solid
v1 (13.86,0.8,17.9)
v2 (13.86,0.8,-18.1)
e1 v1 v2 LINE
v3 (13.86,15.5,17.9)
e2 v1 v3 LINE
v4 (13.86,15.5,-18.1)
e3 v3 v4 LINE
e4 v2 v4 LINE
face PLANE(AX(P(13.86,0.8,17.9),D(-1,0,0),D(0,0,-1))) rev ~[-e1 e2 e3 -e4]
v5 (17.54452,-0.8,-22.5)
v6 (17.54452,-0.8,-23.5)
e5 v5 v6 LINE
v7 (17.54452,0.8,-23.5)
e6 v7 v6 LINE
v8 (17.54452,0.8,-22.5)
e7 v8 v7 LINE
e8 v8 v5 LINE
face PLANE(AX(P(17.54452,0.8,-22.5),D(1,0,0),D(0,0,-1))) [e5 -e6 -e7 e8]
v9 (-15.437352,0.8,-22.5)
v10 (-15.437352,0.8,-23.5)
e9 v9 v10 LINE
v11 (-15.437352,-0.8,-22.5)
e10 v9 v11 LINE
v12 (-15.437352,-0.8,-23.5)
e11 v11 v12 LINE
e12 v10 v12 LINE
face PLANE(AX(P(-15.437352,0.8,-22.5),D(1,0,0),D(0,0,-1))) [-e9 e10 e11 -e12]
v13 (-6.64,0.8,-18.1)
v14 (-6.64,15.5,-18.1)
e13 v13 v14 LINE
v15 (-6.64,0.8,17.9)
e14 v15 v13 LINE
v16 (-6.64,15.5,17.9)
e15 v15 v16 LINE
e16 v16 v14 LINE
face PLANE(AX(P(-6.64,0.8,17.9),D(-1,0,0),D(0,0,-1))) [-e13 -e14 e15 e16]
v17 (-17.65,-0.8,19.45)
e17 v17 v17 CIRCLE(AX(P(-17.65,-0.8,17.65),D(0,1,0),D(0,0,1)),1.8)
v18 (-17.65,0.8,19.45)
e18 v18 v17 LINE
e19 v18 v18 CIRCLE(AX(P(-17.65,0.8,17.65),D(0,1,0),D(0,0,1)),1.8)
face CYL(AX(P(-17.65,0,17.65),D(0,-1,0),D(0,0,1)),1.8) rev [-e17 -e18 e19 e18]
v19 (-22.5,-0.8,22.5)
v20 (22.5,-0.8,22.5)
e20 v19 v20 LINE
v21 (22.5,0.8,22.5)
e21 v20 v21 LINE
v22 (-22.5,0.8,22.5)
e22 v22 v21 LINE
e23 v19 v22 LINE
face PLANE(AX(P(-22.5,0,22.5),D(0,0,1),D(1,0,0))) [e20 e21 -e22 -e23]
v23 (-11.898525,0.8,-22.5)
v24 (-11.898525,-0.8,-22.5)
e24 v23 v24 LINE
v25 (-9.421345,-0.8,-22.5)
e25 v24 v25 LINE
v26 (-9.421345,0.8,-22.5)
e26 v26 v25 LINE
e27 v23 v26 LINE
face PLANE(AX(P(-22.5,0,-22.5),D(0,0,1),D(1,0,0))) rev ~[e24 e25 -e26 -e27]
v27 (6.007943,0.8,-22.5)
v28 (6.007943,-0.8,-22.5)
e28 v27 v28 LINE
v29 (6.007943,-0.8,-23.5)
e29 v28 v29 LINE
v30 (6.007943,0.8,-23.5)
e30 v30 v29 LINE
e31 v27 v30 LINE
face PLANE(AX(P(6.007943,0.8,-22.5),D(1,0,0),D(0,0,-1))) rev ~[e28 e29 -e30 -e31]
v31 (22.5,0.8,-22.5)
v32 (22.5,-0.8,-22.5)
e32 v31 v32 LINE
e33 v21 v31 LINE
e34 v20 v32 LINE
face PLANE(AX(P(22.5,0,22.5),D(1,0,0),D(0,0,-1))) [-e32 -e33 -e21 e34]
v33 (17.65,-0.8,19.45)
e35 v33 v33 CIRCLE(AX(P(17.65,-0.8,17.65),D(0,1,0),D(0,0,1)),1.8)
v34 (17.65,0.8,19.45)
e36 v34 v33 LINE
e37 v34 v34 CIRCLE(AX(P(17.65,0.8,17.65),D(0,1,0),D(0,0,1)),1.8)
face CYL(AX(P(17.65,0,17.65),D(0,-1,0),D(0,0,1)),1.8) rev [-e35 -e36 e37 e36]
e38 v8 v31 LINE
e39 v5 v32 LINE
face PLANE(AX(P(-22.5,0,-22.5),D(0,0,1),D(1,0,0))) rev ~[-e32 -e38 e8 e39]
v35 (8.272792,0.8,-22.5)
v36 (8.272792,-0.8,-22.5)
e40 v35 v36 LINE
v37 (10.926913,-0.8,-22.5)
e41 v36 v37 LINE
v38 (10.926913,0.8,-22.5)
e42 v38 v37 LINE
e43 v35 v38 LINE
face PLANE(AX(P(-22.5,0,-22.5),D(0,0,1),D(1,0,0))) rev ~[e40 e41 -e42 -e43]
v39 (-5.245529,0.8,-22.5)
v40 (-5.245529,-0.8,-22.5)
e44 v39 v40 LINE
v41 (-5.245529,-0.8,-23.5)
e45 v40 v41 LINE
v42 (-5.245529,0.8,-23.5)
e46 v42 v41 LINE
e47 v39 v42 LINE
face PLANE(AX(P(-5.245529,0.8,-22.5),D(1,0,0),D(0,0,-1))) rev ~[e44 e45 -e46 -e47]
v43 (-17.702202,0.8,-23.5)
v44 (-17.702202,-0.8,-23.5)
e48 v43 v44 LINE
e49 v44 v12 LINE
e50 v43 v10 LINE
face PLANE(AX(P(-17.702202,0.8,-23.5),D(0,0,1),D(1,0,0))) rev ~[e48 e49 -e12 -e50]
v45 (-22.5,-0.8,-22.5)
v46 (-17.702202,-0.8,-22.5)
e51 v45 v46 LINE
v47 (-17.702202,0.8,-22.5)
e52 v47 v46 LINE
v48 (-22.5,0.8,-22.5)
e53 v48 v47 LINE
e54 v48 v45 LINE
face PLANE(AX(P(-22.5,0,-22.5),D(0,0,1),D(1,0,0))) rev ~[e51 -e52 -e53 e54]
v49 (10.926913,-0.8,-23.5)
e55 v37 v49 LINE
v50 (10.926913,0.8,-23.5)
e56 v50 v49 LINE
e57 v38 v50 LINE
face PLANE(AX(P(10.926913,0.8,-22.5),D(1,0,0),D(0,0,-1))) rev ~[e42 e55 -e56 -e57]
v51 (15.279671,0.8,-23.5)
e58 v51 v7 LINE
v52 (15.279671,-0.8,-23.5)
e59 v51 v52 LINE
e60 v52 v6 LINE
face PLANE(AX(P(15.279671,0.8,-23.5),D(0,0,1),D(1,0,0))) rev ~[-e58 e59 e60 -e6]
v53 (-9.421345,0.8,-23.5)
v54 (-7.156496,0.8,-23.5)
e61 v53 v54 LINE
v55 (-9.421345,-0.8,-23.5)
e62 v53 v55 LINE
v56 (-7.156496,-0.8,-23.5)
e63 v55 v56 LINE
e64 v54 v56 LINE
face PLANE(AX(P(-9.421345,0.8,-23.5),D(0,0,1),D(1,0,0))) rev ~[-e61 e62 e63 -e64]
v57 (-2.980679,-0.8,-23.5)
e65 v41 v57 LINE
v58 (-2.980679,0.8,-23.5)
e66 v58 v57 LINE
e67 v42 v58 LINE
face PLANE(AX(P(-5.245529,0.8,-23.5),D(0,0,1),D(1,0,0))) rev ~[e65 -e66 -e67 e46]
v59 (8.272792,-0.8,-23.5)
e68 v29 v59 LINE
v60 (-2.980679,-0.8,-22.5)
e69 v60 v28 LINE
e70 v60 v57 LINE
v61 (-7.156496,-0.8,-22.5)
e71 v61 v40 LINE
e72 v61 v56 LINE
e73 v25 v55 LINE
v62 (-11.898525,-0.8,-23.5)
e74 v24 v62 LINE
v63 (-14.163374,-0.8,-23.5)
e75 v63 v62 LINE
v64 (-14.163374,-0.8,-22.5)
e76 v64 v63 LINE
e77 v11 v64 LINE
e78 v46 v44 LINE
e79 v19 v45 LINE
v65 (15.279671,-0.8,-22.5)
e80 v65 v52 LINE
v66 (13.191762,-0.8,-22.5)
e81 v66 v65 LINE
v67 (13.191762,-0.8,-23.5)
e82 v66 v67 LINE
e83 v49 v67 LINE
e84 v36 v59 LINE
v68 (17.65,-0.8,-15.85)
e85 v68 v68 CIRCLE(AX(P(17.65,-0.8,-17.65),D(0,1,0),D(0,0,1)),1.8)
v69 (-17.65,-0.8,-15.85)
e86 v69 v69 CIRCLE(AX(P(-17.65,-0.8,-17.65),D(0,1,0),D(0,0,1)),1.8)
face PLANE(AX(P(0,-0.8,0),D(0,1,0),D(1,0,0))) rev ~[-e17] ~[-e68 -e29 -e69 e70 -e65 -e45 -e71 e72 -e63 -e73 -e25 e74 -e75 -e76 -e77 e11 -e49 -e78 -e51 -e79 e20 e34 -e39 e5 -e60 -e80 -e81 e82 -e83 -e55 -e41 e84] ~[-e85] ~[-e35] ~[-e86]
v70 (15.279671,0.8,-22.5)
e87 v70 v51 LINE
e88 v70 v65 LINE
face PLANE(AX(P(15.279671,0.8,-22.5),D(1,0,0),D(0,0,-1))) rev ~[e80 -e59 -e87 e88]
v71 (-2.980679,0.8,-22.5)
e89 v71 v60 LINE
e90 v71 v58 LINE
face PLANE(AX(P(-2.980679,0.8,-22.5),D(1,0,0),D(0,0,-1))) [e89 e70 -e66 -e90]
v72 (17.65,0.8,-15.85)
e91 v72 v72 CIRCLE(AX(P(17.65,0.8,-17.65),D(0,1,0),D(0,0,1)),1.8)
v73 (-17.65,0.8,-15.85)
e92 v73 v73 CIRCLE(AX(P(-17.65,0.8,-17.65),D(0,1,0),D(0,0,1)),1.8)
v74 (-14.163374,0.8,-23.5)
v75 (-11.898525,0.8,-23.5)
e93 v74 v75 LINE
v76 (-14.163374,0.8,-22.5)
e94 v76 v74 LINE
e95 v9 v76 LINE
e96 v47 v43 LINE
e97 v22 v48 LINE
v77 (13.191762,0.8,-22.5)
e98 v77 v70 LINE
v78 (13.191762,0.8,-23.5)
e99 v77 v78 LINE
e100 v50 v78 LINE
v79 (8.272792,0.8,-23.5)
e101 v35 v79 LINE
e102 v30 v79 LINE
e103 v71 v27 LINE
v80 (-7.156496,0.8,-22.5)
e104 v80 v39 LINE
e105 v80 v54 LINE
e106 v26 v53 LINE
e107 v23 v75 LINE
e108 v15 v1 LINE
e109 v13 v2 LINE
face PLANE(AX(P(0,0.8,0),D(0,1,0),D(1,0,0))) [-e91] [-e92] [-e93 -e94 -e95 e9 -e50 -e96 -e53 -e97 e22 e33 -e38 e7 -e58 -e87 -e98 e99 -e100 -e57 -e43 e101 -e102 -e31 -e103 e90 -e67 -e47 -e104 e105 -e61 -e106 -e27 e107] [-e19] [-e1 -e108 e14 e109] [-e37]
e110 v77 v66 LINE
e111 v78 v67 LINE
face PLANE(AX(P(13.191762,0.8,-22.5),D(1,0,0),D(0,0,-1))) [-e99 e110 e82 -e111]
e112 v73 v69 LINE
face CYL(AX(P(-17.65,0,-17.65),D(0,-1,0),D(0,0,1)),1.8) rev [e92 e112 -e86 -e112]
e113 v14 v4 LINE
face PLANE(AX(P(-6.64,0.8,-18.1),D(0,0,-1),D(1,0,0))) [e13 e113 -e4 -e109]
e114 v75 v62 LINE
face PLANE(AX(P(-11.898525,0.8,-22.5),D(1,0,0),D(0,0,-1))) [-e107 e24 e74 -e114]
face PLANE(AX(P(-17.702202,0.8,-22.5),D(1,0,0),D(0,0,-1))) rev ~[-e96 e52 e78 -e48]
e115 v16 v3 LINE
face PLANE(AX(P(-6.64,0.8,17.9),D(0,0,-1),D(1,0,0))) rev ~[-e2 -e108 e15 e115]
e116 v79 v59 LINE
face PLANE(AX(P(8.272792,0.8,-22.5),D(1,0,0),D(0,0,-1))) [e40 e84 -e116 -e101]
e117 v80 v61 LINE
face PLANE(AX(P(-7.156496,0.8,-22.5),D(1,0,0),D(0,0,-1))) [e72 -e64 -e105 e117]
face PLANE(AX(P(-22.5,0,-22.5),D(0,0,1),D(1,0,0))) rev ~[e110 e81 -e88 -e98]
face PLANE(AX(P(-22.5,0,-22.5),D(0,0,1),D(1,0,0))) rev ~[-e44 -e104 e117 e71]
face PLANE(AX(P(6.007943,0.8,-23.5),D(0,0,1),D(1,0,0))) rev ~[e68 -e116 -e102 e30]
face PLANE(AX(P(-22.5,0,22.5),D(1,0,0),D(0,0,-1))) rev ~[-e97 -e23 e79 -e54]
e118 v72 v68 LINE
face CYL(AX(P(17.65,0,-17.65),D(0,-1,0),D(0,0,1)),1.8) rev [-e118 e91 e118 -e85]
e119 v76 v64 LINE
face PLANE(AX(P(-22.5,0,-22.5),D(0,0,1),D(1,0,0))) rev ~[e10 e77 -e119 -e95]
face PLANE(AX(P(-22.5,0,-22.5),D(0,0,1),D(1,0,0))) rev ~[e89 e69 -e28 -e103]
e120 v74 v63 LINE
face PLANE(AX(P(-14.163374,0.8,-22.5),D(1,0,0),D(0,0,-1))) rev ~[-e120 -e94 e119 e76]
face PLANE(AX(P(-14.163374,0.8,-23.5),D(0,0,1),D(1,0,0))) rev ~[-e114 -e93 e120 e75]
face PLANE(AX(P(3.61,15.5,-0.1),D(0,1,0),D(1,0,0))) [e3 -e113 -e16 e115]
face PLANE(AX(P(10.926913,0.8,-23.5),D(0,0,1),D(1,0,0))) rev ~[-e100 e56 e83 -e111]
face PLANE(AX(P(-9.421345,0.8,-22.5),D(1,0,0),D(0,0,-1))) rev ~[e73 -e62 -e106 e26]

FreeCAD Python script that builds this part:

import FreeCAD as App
import Part
import Sketcher
Q = App.Units.Quantity


def add_polygon(sketch, points):
    """Adds a closed chain of lines whose ends are joined by coincident constraints."""
    first, n = sketch.GeometryCount, len(points)
    for a, b in zip(points, points[1:] + points[:1]):
        sketch.addGeometry(Part.LineSegment(App.Vector(*a, 0), App.Vector(*b, 0)), False)
    for i in range(n):
        sketch.addConstraint(Sketcher.Constraint("Coincident", first + i, 2, first + (i + 1) % n, 1))

doc = App.newDocument("Part")
body = doc.addObject("PartDesign::Body", "Body")

# Sketch on XZ plane
sketch1 = body.newObject("Sketcher::SketchObject", "Sketch")
sketch1.AttachmentSupport = (doc.getObject("XZ_Plane"), [""])
sketch1.MapMode = "FlatFace"
add_polygon(sketch1, [(-22.5, -22.5), (-22.5, 22.5), (22.5, 22.5), (22.5, -22.5)])  # lines 0-3
sketch1.addGeometry(Part.Circle(App.Vector(-17.65, 17.65, 0), App.Vector(0, 0, 1), 1.8), False)  # 4
sketch1.addGeometry(Part.Circle(App.Vector(17.65, 17.65, 0), App.Vector(0, 0, 1), 1.8), False)  # 5
sketch1.addGeometry(Part.Circle(App.Vector(-17.65, -17.65, 0), App.Vector(0, 0, 1), 1.8), False)  # 6
sketch1.addGeometry(Part.Circle(App.Vector(17.65, -17.65, 0), App.Vector(0, 0, 1), 1.8), False)  # 7
sketch1.addConstraint([
    Sketcher.Constraint("Vertical", 0),
    Sketcher.Constraint("Horizontal", 1),
    Sketcher.Constraint("Vertical", 2),
    Sketcher.Constraint("Horizontal", 3),
    Sketcher.Constraint("Equal", 4, 5),
    Sketcher.Constraint("Equal", 5, 6),
    Sketcher.Constraint("Equal", 6, 7),
    Sketcher.Constraint("Symmetric", 5, 3, 6, 3, -1, 1),
    Sketcher.Constraint("Symmetric", 4, 3, 7, 3, -1, 1),
    Sketcher.Constraint("Symmetric", 0, 2, 2, 2, -1, 1),
    Sketcher.Constraint("Symmetric", 4, 3, 5, 3, -2),
    Sketcher.Constraint("Equal", 3, 0),
    Sketcher.Constraint("Diameter", 4, Q("3.6 mm")),
    Sketcher.Constraint("DistanceX", 1, 1, 1, 2, Q("45 mm")),
    Sketcher.Constraint("DistanceX", 4, 3, 5, 3, Q("35.3 mm")),
    Sketcher.Constraint("DistanceY", 6, 3, 4, 3, Q("35.3 mm")),
])
pad1 = body.newObject("PartDesign::Pad", "Pad")
pad1.Profile = sketch1
pad1.Length = 1.6
pad1.Midplane = True

# Sketch on XZ plane
sketch2 = body.newObject("Sketcher::SketchObject", "Sketch001")
sketch2.AttachmentSupport = (doc.getObject("XZ_Plane"), [""])
sketch2.MapMode = "FlatFace"
sketch2.AttachmentOffset = App.Placement(App.Vector(0, 0, -0.8), App.Rotation())
add_polygon(sketch2, [(-17.702202, -23.5), (-17.702202, -22.5), (-15.437352, -22.5), (-15.437352, -23.5)])  # lines 0-3
add_polygon(sketch2, [(-14.163374, -23.5), (-14.163374, -22.5), (-11.898525, -22.5), (-11.898525, -23.5)])  # lines 4-7
add_polygon(sketch2, [(-9.421345, -23.5), (-9.421345, -22.5), (-7.156496, -22.5), (-7.156496, -23.5)])  # lines 8-11
add_polygon(sketch2, [(-5.245529, -23.5), (-5.245529, -22.5), (-2.980679, -22.5), (-2.980679, -23.5)])  # lines 12-15
add_polygon(sketch2, [(6.007943, -23.5), (6.007943, -22.5), (8.272792, -22.5), (8.272792, -23.5)])  # lines 16-19
add_polygon(sketch2, [(10.926913, -23.5), (10.926913, -22.5), (13.191762, -22.5), (13.191762, -23.5)])  # lines 20-23
add_polygon(sketch2, [(15.279671, -23.5), (15.279671, -22.5), (17.54452, -22.5), (17.54452, -23.5)])  # lines 24-27
sketch2.addConstraint([
    Sketcher.Constraint("Vertical", 0),
    Sketcher.Constraint("Horizontal", 1),
    Sketcher.Constraint("Vertical", 2),
    Sketcher.Constraint("Horizontal", 3),
    Sketcher.Constraint("Vertical", 4),
    Sketcher.Constraint("Horizontal", 5),
    Sketcher.Constraint("Vertical", 6),
    Sketcher.Constraint("Horizontal", 7),
    Sketcher.Constraint("Vertical", 8),
    Sketcher.Constraint("Horizontal", 9),
    Sketcher.Constraint("Vertical", 10),
    Sketcher.Constraint("Horizontal", 11),
    Sketcher.Constraint("Vertical", 12),
    Sketcher.Constraint("Horizontal", 13),
    Sketcher.Constraint("Vertical", 14),
    Sketcher.Constraint("Horizontal", 15),
    Sketcher.Constraint("Vertical", 16),
    Sketcher.Constraint("Horizontal", 17),
    Sketcher.Constraint("Vertical", 18),
    Sketcher.Constraint("Horizontal", 19),
    Sketcher.Constraint("Vertical", 20),
    Sketcher.Constraint("Horizontal", 21),
    Sketcher.Constraint("Vertical", 22),
    Sketcher.Constraint("Horizontal", 23),
    Sketcher.Constraint("Vertical", 24),
    Sketcher.Constraint("Horizontal", 25),
    Sketcher.Constraint("Vertical", 26),
    Sketcher.Constraint("Horizontal", 27),
    Sketcher.Constraint("Horizontal", 1, 2, 4, 2),
    Sketcher.Constraint("Horizontal", 3, 2, 6, 2),
    Sketcher.Constraint("Horizontal", 5, 2, 8, 2),
    Sketcher.Constraint("Horizontal", 7, 2, 10, 2),
    Sketcher.Constraint("Horizontal", 9, 2, 12, 2),
    Sketcher.Constraint("Horizontal", 11, 2, 14, 2),
    Sketcher.Constraint("Horizontal", 13, 2, 16, 2),
    Sketcher.Constraint("Horizontal", 15, 2, 18, 2),
    Sketcher.Constraint("Horizontal", 17, 2, 20, 2),
    Sketcher.Constraint("Horizontal", 19, 2, 22, 2),
    Sketcher.Constraint("Horizontal", 21, 2, 24, 2),
    Sketcher.Constraint("Horizontal", 23, 2, 26, 2),
    Sketcher.Constraint("Equal", 3, 5),
    Sketcher.Constraint("Equal", 7, 9),
    Sketcher.Constraint("Equal", 11, 13),
    Sketcher.Constraint("Equal", 15, 17),
    Sketcher.Constraint("Equal", 19, 21),
    Sketcher.Constraint("Equal", 23, 25),
    Sketcher.Constraint("DistanceY", 0, 1, 0, 2, Q("1 mm")),
    Sketcher.Constraint("DistanceY", 0, 2, -1, 1, Q("22.5 mm")),
    Sketcher.Constraint("DistanceX", 1, 1, 1, 2, Q("2.26485 mm")),
    Sketcher.Constraint("DistanceX", 0, 2, -1, 1, Q("17.702202 mm")),
    Sketcher.Constraint("DistanceX", 12, 2, -1, 1, Q("5.245529 mm")),
    Sketcher.Constraint("DistanceX", -1, 1, 24, 2, Q("15.279671 mm")),
    Sketcher.Constraint("DistanceX", 5, 2, 8, 2, Q("2.477179 mm")),
    Sketcher.Constraint("DistanceX", 13, 2, 16, 2, Q("8.988622 mm")),
    Sketcher.Constraint("DistanceX", 9, 2, 16, 2, Q("13.164438 mm")),
    Sketcher.Constraint("DistanceX", 17, 2, 20, 2, Q("2.654121 mm")),
])
pad2 = body.newObject("PartDesign::Pad", "Pad001")
pad2.Profile = sketch2
pad2.Length = 1.6

# Sketch on XZ plane
sketch3 = body.newObject("Sketcher::SketchObject", "Sketch002")
sketch3.AttachmentSupport = (doc.getObject("XZ_Plane"), [""])
sketch3.MapMode = "FlatFace"
sketch3.AttachmentOffset = App.Placement(App.Vector(0, 0, -0.8), App.Rotation())
add_polygon(sketch3, [(-6.64, -18.1), (-6.64, 17.9), (13.86, 17.9), (13.86, -18.1)])  # lines 0-3
sketch3.addConstraint([
    Sketcher.Constraint("Vertical", 0),
    Sketcher.Constraint("Horizontal", 1),
    Sketcher.Constraint("Vertical", 2),
    Sketcher.Constraint("Horizontal", 3),
    Sketcher.Constraint("DistanceY", 0, 1, 0, 2, Q("36 mm")),
    Sketcher.Constraint("DistanceX", 1, 1, 1, 2, Q("20.5 mm")),
    Sketcher.Constraint("DistanceY", -1, 1, 0, 2, Q("17.9 mm")),
    Sketcher.Constraint("DistanceX", 0, 2, -1, 1, Q("6.64 mm")),
])
pad3 = body.newObject("PartDesign::Pad", "Pad002")
pad3.Profile = sketch3
pad3.Length = 14.7
pad3.Reversed = True

doc.recompute()
